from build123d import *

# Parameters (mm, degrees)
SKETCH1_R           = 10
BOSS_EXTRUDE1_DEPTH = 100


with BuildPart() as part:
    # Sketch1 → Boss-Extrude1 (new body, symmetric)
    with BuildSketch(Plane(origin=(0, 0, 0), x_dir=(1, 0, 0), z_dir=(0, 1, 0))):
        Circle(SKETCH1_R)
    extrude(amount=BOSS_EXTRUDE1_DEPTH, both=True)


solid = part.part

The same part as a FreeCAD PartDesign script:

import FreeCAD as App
import Part
import Sketcher

doc = App.newDocument("Part")
body = doc.addObject("PartDesign::Body", "Body")

# Sketch on XZ plane
sketch1 = body.newObject("Sketcher::SketchObject", "Sketch")
sketch1.AttachmentSupport = (doc.getObject("XZ_Plane"), [""])
sketch1.MapMode = "FlatFace"
sketch1.addGeometry(Part.Circle(App.Vector(0, 0, 0), App.Vector(0, 0, 1), 10), False)
sketch1.addConstraint([
    Sketcher.Constraint("Coincident", 0, 3, -1, 1),
    Sketcher.Constraint("Diameter", 0, 20.0),
])
pad1 = body.newObject("PartDesign::Pad", "Pad")
pad1.Profile = sketch1
pad1.Length = 200
pad1.Midplane = True

doc.recompute()
